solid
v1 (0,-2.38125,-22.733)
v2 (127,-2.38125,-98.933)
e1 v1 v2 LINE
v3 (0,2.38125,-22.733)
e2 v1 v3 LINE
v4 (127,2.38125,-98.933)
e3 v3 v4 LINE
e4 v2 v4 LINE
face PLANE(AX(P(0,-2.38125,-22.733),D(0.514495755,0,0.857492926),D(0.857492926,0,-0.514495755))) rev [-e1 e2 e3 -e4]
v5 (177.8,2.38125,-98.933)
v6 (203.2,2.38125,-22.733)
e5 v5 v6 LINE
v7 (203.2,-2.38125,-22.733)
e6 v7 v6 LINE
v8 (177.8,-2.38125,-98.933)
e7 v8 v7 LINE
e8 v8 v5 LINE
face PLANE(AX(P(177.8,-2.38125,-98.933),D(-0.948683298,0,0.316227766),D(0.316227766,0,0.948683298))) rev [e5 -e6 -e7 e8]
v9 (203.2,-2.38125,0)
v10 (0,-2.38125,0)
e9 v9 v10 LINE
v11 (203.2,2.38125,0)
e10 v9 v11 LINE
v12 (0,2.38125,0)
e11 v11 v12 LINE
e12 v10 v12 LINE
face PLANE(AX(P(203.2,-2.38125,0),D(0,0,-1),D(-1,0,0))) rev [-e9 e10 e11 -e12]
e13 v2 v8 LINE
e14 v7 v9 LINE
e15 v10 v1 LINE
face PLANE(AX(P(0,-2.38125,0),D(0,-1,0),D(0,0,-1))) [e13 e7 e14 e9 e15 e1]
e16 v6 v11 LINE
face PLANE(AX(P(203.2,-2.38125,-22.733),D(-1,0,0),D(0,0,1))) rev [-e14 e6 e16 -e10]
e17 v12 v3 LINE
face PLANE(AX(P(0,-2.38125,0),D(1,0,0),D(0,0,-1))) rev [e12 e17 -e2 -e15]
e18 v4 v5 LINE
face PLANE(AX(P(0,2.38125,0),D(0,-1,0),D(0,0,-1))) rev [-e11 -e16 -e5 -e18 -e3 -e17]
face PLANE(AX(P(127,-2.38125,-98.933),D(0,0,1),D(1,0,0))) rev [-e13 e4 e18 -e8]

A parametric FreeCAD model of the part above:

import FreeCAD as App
import Part
import Sketcher
Q = App.Units.Quantity

doc = App.newDocument("Part")
params = doc.addObject("Spreadsheet::Sheet", "Params")
for row, (alias, value) in enumerate([
    ("sketch1_width", "8 in"),
    ("sketch1_width2", "2 in"),
    ("sketch1_height", "0.895 in"),
    ("pad1_length", "0.09375 in"),
    ("pad1_length2", "0.09375 in"),
], start=1):
    params.set(f"A{row}", alias)
    params.set(f"B{row}", "=" + value)
    params.setAlias(f"B{row}", alias)

body = doc.addObject("PartDesign::Body", "Body")

# Sketch on XZ plane
sketch1 = body.newObject("Sketcher::SketchObject", "Sketch")
sketch1.AttachmentSupport = (doc.getObject("XZ_Plane"), [""])
sketch1.MapMode = "FlatFace"
sketch1.addGeometry(Part.LineSegment(App.Vector(0, -22.733, 0), App.Vector(0, 0, 0)), False)
sketch1.addGeometry(Part.LineSegment(App.Vector(0, 0, 0), App.Vector(203.2, 0, 0)), False)
sketch1.addGeometry(Part.LineSegment(App.Vector(203.2, 0, 0), App.Vector(203.2, -22.733, 0)), False)
sketch1.addGeometry(Part.LineSegment(App.Vector(203.2, -22.733, 0), App.Vector(177.8, -98.933, 0)), False)
sketch1.addGeometry(Part.LineSegment(App.Vector(177.8, -98.933, 0), App.Vector(127, -98.933, 0)), False)
sketch1.addGeometry(Part.LineSegment(App.Vector(127, -98.933, 0), App.Vector(0, -22.733, 0)), False)
sketch1.addConstraint(Sketcher.Constraint("Coincident", 0, 2, 1, 1))
sketch1.addConstraint(Sketcher.Constraint("Coincident", 1, 2, 2, 1))
sketch1.addConstraint(Sketcher.Constraint("Coincident", 2, 2, 3, 1))
sketch1.addConstraint(Sketcher.Constraint("Coincident", 3, 2, 4, 1))
sketch1.addConstraint(Sketcher.Constraint("Coincident", 4, 2, 5, 1))
sketch1.addConstraint(Sketcher.Constraint("Coincident", 5, 2, 0, 1))
sketch1.addConstraint(Sketcher.Constraint("Vertical", 0))
sketch1.addConstraint(Sketcher.Constraint("Horizontal", 1))
sketch1.addConstraint(Sketcher.Constraint("Vertical", 2))
sketch1.addConstraint(Sketcher.Constraint("Horizontal", 4))
sketch1.addConstraint(Sketcher.Constraint("Coincident", 0, 2, -1, 1))
sketch1.addConstraint(Sketcher.Constraint("Horizontal", 2, 2, 5, 2))
sketch1.addConstraint(Sketcher.Constraint("DistanceX", 1, 1, 1, 2, Q("8 in")))
sketch1.addConstraint(Sketcher.Constraint("DistanceX", 4, 2, 4, 1, Q("2 in")))
sketch1.addConstraint(Sketcher.Constraint("DistanceX", -1, 1, 3, 2, Q("7 in")))
sketch1.addConstraint(Sketcher.Constraint("DistanceY", 3, 2, 2, 2, Q("3 in")))
sketch1.addConstraint(Sketcher.Constraint("DistanceY", 0, 1, 0, 2, Q("0.895 in")))
sketch1.setExpression("Constraints[12]", "Params.sketch1_width")
sketch1.setExpression("Constraints[13]", "Params.sketch1_width2")
sketch1.setExpression("Constraints[16]", "Params.sketch1_height")
pad1 = body.newObject("PartDesign::Pad", "Pad")
pad1.Profile = sketch1
pad1.Type = "TwoLengths"
pad1.setExpression("Length", "Params.pad1_length")
pad1.setExpression("Length2", "Params.pad1_length2")
pad1.Reversed = True

doc.recompute()
